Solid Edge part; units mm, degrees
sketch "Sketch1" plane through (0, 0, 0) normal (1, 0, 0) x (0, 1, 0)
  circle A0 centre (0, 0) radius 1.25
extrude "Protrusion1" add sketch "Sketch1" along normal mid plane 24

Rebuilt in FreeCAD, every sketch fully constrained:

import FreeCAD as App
import Part
import Sketcher
Q = App.Units.Quantity

doc = App.newDocument("Part")
body = doc.addObject("PartDesign::Body", "Body")

sketch1 = body.newObject("Sketcher::SketchObject", "Sketch")
sketch1.AttachmentSupport = (doc.getObject("YZ_Plane"), [""])
sketch1.MapMode = "FlatFace"
sketch1.addGeometry(Part.Circle(App.Vector(0, 0, 0), App.Vector(0, 0, 1), 1.25), False)
sketch1.addConstraint([
    Sketcher.Constraint("Coincident", 0, 3, -1, 1),
    Sketcher.Constraint("Diameter", 0, Q("2.5 mm")),
])
pad1 = body.newObject("PartDesign::Pad", "Pad")
pad1.Profile = sketch1
pad1.Length = 24
pad1.Midplane = True

doc.recompute()
